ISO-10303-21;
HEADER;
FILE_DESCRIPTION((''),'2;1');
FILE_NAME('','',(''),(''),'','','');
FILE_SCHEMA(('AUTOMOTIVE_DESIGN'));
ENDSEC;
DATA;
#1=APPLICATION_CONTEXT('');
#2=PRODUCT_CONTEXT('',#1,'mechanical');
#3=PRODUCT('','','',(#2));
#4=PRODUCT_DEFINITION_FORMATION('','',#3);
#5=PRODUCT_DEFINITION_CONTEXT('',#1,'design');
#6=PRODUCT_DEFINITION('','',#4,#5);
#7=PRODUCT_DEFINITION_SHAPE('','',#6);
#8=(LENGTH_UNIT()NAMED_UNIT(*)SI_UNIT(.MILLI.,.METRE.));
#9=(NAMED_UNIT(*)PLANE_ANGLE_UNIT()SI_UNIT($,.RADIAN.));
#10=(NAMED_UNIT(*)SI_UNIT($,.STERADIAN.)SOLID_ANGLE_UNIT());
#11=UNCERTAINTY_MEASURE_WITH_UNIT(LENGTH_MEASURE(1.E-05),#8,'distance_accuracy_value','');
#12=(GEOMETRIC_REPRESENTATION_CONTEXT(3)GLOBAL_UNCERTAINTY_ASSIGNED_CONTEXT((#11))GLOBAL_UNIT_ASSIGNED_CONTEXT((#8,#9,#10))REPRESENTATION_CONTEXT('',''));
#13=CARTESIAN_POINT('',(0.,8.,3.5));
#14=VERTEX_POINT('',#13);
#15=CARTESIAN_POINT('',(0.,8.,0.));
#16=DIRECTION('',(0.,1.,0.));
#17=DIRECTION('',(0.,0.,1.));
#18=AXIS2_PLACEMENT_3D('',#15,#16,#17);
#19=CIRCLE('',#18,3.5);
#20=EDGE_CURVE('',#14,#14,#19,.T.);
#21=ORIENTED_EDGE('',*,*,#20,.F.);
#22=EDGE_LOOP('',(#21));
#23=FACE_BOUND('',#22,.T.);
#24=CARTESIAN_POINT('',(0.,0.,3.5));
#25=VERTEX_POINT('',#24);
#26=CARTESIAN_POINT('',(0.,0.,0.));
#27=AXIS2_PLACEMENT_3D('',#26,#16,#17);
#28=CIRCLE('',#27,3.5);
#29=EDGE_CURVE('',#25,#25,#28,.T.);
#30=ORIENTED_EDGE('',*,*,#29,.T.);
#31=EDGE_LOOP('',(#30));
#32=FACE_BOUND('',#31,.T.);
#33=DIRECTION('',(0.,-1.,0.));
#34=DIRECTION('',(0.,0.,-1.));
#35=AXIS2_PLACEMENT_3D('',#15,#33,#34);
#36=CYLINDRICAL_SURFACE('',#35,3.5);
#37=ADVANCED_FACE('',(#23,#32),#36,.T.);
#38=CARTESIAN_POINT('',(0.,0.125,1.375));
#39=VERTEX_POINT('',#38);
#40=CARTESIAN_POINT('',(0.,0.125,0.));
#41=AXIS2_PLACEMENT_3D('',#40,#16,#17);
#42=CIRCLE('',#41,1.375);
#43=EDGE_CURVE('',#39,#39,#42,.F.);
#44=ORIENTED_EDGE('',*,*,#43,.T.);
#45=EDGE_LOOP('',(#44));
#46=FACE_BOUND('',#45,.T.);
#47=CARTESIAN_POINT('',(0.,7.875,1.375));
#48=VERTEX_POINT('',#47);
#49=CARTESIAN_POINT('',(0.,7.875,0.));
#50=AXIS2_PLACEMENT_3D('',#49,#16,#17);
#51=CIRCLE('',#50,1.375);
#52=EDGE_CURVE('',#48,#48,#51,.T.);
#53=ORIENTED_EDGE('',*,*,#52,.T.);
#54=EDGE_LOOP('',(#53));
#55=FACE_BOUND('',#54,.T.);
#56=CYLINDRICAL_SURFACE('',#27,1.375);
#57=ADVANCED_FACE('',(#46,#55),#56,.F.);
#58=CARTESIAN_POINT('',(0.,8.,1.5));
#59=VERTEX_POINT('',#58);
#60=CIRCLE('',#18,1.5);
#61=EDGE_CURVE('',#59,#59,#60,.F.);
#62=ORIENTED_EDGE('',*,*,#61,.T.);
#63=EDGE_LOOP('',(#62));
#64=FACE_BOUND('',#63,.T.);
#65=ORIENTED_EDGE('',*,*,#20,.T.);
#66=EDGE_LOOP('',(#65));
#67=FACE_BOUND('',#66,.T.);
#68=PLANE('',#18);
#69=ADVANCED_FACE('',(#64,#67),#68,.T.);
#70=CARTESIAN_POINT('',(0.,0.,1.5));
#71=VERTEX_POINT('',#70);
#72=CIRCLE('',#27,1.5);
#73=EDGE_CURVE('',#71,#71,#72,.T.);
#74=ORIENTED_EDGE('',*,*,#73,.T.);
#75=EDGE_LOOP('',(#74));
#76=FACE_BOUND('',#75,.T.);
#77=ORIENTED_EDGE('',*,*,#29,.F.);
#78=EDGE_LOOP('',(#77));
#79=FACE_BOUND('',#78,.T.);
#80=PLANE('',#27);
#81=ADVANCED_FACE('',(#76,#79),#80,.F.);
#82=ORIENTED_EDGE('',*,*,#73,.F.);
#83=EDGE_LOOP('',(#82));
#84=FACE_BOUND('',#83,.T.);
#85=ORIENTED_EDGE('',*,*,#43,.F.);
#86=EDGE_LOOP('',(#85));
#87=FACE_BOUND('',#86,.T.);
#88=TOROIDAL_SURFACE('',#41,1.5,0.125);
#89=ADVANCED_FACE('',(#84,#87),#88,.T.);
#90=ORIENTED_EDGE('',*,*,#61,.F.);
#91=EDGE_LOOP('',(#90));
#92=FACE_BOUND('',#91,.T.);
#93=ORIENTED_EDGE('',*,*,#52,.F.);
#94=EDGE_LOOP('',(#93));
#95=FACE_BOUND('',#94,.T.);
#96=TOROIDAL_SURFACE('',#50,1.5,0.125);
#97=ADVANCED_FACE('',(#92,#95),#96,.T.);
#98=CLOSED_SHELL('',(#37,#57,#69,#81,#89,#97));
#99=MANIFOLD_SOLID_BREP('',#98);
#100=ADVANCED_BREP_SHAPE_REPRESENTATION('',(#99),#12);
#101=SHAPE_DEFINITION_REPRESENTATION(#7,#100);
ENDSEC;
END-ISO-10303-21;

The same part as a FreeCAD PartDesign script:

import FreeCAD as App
import Part
import Sketcher


def edges_at(feature, points):
    """Names of the edges that pass closest to the given points."""
    edges = feature.Shape.Edges
    near = lambda p: min(range(len(edges)), key=lambda i: edges[i].distToShape(Part.Vertex(*p))[0])
    return sorted({f"Edge{near(p) + 1}" for p in points})

doc = App.newDocument("Part")
params = doc.addObject("Spreadsheet::Sheet", "Params")
for row, (alias, value) in enumerate([
    ("sketch1_diameter", "7 mm"),
    ("pad1_length", "8 mm"),
    ("sketch2_diameter", "2.75 mm"),
    ("pocket1_length", "8 mm"),
    ("fillet_radius", "0.125 mm"),
], start=1):
    params.set(f"A{row}", alias)
    params.set(f"B{row}", "=" + value)
    params.setAlias(f"B{row}", alias)

body = doc.addObject("PartDesign::Body", "Body")

sketch1 = body.newObject("Sketcher::SketchObject", "Sketch")
sketch1.AttachmentSupport = (doc.getObject("XZ_Plane"), [""])
sketch1.MapMode = "FlatFace"
sketch1.addGeometry(Part.Circle(App.Vector(0, 0, 0), App.Vector(0, 0, 1), 3.5), False)
sketch1.addConstraint(Sketcher.Constraint("Coincident", 0, 3, -1, 1))
sketch1.addConstraint(Sketcher.Constraint("Diameter", 0, 7.0))
sketch1.setExpression("Constraints[1]", "Params.sketch1_diameter")
pad1 = body.newObject("PartDesign::Pad", "Pad")
pad1.Profile = sketch1
pad1.setExpression("Length", "Params.pad1_length")
pad1.Reversed = True

sketch2 = body.newObject("Sketcher::SketchObject", "Sketch001")
sketch2.AttachmentSupport = (doc.getObject("XZ_Plane"), [""])
sketch2.MapMode = "FlatFace"
sketch2.AttachmentOffset = App.Placement(App.Vector(0, 0, -8), App.Rotation())
sketch2.addGeometry(Part.Circle(App.Vector(0, 0, 0), App.Vector(0, 0, 1), 1.4), False)
sketch2.addConstraint(Sketcher.Constraint("Coincident", 0, 3, -1, 1))
sketch2.addConstraint(Sketcher.Constraint("Diameter", 0, 2.75))
sketch2.setExpression("Constraints[1]", "Params.sketch2_diameter")
pocket1 = body.newObject("PartDesign::Pocket", "Pocket")
pocket1.Profile = sketch2
pocket1.setExpression("Length", "Params.pocket1_length")
pocket1.Reversed = True
doc.recompute()

fillet = body.newObject("PartDesign::Fillet", "Fillet")
fillet.Base = (pocket1, edges_at(pocket1, [(-1.375, 0, 0), (-1.375, 8, 0)]))
fillet.setExpression("Radius", "Params.fillet_radius")

doc.recompute()
